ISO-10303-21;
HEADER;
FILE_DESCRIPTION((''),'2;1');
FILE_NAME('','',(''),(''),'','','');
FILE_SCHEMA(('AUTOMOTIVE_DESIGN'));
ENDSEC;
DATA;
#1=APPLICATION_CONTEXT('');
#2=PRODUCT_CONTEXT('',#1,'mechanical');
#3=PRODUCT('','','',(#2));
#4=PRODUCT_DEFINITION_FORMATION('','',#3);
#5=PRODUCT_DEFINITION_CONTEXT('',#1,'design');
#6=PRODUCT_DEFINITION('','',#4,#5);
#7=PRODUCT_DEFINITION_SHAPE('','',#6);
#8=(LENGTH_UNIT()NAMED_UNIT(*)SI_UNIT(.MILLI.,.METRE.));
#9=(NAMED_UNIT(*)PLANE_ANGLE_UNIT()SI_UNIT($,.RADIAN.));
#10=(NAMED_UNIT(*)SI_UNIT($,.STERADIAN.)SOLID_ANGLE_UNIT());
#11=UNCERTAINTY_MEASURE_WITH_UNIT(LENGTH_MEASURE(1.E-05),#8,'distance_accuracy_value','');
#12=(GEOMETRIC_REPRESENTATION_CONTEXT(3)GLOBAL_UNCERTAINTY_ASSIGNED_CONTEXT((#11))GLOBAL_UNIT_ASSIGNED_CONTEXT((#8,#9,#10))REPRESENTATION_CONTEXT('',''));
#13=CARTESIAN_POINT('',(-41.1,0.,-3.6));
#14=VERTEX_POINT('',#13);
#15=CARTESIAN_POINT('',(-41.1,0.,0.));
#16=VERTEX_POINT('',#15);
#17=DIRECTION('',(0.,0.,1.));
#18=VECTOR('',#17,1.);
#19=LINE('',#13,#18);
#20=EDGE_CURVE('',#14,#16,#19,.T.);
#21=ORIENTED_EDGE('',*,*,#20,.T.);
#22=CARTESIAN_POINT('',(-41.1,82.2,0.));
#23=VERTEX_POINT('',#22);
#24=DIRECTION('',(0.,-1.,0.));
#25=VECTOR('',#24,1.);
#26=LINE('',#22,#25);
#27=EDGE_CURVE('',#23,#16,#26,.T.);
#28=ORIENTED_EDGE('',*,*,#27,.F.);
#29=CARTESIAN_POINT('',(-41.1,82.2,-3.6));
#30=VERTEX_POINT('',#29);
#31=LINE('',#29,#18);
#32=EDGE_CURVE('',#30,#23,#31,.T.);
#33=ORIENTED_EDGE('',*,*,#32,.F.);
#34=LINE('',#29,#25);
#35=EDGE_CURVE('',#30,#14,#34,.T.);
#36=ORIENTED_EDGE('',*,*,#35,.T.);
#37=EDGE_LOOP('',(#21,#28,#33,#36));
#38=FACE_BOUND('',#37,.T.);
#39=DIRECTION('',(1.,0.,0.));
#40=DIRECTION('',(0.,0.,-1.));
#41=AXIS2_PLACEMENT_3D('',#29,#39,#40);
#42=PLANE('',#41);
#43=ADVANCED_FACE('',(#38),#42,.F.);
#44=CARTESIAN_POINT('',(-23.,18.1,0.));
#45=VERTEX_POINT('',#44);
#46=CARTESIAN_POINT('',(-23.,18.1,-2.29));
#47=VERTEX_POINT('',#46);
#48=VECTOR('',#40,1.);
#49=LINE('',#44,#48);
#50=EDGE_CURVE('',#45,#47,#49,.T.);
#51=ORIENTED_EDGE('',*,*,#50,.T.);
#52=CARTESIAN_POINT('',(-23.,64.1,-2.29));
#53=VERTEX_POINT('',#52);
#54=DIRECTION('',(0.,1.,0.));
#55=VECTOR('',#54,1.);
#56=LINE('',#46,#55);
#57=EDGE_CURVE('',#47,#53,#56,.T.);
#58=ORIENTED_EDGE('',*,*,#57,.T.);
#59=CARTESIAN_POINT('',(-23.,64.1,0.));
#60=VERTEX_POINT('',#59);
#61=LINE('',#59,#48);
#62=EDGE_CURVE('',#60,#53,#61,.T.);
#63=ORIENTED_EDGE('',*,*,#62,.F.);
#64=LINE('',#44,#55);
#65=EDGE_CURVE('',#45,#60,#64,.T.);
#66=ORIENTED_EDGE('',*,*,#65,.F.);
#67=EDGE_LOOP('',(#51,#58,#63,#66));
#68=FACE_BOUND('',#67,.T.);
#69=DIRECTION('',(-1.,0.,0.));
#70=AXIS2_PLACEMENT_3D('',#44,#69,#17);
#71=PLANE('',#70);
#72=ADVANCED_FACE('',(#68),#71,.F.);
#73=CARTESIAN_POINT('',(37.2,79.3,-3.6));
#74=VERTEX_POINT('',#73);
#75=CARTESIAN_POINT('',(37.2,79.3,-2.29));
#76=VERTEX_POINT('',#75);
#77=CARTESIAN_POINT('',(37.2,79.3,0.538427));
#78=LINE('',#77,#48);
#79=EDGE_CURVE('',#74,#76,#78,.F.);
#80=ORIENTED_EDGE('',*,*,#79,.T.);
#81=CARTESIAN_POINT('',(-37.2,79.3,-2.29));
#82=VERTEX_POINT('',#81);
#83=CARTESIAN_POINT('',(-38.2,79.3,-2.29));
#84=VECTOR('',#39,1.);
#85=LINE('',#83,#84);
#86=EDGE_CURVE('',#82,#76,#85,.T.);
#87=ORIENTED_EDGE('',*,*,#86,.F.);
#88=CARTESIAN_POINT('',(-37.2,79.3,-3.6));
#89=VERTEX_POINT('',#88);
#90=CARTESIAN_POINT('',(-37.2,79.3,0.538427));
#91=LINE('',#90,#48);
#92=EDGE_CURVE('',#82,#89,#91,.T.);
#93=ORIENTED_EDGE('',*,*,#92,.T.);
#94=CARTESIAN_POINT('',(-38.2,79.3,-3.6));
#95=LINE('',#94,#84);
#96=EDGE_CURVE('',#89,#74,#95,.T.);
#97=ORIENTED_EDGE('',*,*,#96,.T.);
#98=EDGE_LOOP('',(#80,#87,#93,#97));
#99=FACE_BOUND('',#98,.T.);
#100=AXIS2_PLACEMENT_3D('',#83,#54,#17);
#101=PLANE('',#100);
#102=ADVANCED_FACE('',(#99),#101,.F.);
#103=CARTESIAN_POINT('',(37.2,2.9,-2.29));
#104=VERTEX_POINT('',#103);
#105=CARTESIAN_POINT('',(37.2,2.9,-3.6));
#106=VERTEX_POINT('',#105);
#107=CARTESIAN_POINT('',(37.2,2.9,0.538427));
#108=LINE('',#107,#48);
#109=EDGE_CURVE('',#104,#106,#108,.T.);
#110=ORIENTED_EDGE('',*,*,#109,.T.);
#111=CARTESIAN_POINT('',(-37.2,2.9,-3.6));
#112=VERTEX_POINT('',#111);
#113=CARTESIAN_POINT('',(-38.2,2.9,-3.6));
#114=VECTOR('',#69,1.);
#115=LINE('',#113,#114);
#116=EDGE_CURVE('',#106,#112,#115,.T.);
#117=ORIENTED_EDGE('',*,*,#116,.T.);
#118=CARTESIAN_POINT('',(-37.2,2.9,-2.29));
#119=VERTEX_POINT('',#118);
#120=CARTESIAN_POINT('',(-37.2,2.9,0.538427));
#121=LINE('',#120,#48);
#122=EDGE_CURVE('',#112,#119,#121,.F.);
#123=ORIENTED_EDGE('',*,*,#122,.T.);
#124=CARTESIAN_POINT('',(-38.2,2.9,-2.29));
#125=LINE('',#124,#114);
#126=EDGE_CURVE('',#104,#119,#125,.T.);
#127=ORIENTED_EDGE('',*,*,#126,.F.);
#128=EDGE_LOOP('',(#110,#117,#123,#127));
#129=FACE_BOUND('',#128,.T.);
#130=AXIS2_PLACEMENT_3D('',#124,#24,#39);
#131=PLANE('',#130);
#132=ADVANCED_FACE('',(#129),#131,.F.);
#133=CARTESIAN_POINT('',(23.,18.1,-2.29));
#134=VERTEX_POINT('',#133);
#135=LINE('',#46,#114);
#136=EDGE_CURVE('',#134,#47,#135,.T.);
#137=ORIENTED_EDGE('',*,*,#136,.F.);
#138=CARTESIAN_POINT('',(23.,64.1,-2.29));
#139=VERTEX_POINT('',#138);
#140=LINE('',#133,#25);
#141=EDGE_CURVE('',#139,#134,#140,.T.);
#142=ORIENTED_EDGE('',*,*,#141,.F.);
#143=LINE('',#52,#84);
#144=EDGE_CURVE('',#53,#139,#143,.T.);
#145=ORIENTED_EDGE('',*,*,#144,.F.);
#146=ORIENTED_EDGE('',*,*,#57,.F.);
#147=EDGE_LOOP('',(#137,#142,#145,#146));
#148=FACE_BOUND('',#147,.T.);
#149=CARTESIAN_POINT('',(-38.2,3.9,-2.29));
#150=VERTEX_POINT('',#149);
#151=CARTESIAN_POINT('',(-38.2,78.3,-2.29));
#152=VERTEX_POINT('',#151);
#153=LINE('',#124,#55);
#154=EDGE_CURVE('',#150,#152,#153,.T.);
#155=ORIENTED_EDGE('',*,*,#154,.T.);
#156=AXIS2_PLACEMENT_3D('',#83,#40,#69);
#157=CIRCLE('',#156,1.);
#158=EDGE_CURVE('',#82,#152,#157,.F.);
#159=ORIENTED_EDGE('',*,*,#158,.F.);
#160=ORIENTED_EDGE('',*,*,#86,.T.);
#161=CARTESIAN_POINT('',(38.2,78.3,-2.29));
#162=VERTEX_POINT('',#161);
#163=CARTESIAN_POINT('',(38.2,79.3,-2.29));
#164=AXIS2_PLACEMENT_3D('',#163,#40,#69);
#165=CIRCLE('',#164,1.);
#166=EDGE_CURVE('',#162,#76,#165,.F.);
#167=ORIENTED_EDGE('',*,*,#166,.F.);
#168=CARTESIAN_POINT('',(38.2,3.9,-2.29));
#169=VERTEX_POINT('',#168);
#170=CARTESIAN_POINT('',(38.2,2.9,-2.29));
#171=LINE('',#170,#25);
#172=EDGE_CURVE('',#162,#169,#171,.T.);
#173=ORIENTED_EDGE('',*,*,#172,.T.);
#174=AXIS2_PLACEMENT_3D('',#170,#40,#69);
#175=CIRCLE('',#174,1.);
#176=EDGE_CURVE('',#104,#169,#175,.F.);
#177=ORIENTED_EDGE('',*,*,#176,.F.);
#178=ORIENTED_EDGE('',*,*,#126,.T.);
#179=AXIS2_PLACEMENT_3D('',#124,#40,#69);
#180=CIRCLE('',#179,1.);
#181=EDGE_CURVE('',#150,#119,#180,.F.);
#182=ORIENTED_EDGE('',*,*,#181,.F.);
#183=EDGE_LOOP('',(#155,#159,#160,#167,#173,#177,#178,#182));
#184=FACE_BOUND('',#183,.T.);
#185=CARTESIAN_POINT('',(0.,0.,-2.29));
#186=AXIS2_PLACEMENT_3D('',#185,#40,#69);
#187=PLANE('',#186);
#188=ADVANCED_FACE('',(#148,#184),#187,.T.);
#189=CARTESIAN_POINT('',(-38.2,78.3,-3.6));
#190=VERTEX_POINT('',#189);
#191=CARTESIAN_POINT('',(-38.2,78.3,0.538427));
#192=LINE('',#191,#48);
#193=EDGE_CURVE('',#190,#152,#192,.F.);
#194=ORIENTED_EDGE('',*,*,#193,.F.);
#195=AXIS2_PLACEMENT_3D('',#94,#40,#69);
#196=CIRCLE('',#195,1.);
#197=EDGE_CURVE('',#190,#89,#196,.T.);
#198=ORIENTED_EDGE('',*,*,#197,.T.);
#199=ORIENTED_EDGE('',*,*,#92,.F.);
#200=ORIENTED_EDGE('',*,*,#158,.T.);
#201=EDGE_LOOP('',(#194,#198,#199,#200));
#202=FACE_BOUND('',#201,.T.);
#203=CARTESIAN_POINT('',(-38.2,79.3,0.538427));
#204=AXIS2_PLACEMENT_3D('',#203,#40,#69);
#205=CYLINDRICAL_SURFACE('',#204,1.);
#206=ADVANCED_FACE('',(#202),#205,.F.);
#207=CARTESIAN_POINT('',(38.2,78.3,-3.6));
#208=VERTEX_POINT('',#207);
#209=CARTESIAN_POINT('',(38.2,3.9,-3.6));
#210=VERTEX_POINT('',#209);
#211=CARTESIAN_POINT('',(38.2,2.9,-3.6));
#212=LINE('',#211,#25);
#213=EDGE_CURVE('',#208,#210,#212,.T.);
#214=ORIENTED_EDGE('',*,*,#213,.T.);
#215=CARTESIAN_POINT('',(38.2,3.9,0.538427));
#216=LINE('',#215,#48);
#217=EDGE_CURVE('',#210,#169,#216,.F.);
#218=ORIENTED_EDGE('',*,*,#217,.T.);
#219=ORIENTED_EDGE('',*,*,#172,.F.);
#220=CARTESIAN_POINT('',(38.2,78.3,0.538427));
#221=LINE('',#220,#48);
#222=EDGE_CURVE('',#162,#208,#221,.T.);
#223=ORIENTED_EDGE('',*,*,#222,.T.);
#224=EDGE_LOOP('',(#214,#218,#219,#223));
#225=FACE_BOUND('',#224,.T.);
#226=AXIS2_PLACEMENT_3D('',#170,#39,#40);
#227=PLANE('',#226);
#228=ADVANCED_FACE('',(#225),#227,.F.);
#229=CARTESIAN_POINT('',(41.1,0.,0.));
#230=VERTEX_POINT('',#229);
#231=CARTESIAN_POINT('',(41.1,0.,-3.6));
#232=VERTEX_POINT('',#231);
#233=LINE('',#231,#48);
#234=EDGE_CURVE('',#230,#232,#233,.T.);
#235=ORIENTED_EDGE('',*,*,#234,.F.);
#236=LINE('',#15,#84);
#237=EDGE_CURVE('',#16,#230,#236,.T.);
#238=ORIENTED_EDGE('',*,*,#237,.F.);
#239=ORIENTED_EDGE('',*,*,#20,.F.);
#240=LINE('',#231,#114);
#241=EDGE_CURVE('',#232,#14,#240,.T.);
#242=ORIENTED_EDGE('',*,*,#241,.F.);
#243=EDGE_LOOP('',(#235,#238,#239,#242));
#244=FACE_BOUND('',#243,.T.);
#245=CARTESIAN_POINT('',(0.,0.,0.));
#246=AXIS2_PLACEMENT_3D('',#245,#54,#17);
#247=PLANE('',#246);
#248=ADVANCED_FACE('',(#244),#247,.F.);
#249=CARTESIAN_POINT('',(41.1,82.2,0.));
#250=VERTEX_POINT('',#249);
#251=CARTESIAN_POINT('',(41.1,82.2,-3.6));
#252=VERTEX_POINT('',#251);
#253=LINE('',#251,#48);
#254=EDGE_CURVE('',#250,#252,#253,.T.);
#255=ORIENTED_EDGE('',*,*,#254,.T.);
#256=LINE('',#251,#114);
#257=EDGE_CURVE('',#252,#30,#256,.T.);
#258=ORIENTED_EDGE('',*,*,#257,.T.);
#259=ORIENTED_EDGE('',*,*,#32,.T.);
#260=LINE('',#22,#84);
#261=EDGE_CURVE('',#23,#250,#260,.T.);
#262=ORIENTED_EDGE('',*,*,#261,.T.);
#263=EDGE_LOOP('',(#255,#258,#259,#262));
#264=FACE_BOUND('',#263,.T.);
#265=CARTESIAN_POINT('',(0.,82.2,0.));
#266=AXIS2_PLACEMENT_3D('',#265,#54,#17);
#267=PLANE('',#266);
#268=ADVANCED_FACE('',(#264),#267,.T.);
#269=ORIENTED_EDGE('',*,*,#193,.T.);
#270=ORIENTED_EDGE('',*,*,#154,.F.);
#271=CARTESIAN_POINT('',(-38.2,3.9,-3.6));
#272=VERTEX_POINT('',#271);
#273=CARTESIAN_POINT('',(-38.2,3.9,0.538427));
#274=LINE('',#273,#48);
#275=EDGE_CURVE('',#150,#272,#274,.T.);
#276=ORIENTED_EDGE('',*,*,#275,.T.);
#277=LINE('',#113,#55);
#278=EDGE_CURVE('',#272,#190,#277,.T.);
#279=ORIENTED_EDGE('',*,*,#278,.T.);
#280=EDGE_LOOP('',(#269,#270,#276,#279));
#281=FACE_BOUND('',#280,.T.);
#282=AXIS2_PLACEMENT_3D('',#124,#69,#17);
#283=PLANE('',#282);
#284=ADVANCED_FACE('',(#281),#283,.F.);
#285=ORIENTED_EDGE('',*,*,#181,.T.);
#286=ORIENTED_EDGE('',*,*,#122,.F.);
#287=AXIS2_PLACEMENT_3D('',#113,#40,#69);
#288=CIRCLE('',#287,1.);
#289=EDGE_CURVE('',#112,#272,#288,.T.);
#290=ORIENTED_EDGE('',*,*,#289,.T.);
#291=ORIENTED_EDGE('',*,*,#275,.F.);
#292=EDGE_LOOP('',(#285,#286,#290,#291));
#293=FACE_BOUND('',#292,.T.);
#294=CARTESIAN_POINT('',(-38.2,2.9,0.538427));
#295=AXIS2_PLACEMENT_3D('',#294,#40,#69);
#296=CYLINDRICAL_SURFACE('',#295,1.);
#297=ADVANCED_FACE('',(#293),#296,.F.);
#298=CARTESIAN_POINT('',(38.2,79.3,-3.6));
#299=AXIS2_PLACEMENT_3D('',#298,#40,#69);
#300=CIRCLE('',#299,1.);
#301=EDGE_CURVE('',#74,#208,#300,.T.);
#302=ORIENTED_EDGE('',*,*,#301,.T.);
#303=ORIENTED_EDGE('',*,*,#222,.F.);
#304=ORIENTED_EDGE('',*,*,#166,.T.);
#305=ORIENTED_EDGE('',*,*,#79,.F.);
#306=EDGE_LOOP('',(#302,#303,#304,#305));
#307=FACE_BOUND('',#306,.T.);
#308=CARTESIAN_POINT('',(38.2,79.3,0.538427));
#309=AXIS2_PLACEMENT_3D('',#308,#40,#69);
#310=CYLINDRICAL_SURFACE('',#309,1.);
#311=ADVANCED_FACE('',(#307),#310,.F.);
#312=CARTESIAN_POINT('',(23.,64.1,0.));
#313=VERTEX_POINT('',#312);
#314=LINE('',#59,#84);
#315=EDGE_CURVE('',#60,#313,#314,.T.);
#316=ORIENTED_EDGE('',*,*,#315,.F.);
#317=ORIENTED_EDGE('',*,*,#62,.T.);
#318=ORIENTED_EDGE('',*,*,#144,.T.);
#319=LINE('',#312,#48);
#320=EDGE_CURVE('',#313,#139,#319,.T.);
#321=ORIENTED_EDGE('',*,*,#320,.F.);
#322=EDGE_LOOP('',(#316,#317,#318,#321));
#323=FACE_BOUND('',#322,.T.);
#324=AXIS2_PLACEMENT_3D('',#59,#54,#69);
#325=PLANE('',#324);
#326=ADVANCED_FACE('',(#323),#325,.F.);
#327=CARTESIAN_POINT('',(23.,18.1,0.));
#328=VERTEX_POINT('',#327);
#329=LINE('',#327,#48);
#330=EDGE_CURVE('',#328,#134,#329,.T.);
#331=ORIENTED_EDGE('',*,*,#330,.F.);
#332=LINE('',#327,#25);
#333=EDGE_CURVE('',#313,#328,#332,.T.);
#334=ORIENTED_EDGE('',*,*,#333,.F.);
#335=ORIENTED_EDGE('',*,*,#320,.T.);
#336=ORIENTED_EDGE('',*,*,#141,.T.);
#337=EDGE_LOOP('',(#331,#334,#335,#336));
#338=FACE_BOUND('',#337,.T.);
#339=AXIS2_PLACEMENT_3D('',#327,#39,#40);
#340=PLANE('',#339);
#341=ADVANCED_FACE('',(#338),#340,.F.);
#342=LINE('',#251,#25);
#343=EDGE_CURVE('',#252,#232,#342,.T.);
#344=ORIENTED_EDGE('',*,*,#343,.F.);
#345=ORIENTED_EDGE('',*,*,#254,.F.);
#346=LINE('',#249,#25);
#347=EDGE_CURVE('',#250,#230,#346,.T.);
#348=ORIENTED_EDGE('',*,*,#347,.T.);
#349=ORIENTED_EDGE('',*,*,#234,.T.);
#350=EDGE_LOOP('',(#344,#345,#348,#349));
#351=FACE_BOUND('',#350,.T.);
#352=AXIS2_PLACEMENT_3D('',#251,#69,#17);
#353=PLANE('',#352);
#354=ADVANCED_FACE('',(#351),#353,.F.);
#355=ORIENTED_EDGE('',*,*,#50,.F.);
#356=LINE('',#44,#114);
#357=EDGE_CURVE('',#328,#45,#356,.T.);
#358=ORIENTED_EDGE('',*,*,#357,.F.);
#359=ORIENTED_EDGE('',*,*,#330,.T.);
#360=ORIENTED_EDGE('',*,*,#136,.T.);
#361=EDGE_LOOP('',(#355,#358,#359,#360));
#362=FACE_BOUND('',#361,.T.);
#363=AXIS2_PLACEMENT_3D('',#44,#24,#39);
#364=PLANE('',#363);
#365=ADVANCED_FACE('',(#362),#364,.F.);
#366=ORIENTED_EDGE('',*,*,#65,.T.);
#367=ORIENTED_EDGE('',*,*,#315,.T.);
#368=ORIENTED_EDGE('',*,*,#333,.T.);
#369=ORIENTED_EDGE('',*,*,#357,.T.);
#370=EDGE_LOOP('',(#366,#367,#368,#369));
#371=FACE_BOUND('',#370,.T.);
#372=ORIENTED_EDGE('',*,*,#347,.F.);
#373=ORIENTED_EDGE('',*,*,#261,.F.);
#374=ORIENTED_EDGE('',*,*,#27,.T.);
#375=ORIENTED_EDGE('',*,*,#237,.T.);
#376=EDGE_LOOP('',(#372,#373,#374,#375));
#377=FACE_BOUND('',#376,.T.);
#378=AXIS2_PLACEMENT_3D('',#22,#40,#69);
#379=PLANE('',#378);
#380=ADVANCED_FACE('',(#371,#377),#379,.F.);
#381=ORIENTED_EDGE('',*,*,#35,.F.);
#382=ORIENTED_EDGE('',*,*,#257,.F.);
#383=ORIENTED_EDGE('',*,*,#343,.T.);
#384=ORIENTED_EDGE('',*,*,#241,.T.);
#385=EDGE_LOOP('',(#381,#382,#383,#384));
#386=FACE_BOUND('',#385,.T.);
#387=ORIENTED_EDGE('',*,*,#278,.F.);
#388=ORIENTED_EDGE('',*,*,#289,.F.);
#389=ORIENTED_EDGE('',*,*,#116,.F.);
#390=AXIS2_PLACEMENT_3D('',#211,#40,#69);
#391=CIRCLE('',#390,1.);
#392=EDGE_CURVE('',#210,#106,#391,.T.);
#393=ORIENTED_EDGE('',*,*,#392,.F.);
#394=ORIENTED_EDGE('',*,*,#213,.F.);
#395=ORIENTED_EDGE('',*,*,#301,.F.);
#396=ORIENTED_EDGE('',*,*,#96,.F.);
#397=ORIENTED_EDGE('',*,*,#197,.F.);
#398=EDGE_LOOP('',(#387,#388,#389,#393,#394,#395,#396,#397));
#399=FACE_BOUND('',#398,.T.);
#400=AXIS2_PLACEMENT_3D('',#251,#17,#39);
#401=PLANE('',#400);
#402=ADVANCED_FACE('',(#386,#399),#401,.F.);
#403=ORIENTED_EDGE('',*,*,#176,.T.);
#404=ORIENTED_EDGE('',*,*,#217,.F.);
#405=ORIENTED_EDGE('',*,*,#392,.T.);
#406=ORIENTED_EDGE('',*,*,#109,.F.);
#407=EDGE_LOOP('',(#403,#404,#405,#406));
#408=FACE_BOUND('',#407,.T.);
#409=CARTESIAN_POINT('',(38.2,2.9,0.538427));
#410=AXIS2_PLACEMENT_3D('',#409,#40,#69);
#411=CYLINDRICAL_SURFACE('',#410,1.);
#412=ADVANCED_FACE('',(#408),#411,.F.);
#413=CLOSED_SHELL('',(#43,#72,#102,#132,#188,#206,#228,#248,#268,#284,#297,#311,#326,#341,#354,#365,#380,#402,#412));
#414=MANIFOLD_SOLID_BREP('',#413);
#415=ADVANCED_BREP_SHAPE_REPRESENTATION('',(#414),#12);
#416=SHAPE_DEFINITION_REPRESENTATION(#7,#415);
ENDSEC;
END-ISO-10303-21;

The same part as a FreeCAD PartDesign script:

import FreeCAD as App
import Part
import Sketcher
from FreeCAD import Vector

doc = App.newDocument("Part")
params = doc.addObject("Spreadsheet::Sheet", "Params")
for row, (alias, value) in enumerate([
    ("sketch1_width", "82.2 mm"),
    ("sketch1_height", "3.6 mm"),
    ("pad1_length", "82.2 mm"),
    ("sketch2_width", "76.4 mm"),
    ("pocket1_length", "1.31 mm"),
    ("sketch3_diameter", "2 mm"),
    ("pocket2_length", "1.31 mm"),
    ("sketch4_width", "46 mm"),
], start=1):
    params.set(f"A{row}", alias)
    params.set(f"B{row}", "=" + value)
    params.setAlias(f"B{row}", alias)

body = doc.addObject("PartDesign::Body", "Body")

# Sketch on XZ plane
sketch1 = body.newObject("Sketcher::SketchObject", "Sketch")
sketch1.AttachmentSupport = (doc.getObject("XZ_Plane"), [""])
sketch1.MapMode = "FlatFace"
sketch1.addGeometry([
    Part.LineSegment(Vector(-41.1, -3.6, 0), Vector(-41.1, 0, 0)),
    Part.LineSegment(Vector(-41.1, 0, 0), Vector(41.1, 0, 0)),
    Part.LineSegment(Vector(41.1, 0, 0), Vector(41.1, -3.6, 0)),
    Part.LineSegment(Vector(41.1, -3.6, 0), Vector(-41.1, -3.6, 0)),
], False)
sketch1.addConstraint([
    Sketcher.Constraint("Coincident", 0, 2, 1, 1),
    Sketcher.Constraint("Coincident", 1, 2, 2, 1),
    Sketcher.Constraint("Coincident", 2, 2, 3, 1),
    Sketcher.Constraint("Coincident", 3, 2, 0, 1),
    Sketcher.Constraint("Vertical", 0),
    Sketcher.Constraint("Horizontal", 1),
    Sketcher.Constraint("Vertical", 2),
    Sketcher.Constraint("Horizontal", 3),
    Sketcher.Constraint("Symmetric", 0, 2, 1, 2, -1, 1),
    Sketcher.Constraint("DistanceX", 1, 1, 1, 2, 82.2),
    Sketcher.Constraint("DistanceY", 0, 1, 0, 2, 3.6),
])
sketch1.setExpression("Constraints[9]", "Params.sketch1_width")
sketch1.setExpression("Constraints[10]", "Params.sketch1_height")
pad1 = body.newObject("PartDesign::Pad", "Pad")
pad1.Profile = sketch1
pad1.setExpression("Length", "Params.pad1_length")
pad1.Reversed = True

# Sketch on XY plane
sketch2 = body.newObject("Sketcher::SketchObject", "Sketch001")
sketch2.AttachmentSupport = (doc.getObject("XY_Plane"), [""])
sketch2.MapMode = "FlatFace"
sketch2.AttachmentOffset = App.Placement(Vector(0, 0, -3.6), App.Rotation())
sketch2.addGeometry([
    Part.LineSegment(Vector(38.2, 79.3, 0), Vector(38.2, 2.9, 0)),
    Part.LineSegment(Vector(38.2, 2.9, 0), Vector(-38.2, 2.9, 0)),
    Part.LineSegment(Vector(-38.2, 2.9, 0), Vector(-38.2, 79.3, 0)),
    Part.LineSegment(Vector(-38.2, 79.3, 0), Vector(38.2, 79.3, 0)),
], False)
sketch2.addConstraint([
    Sketcher.Constraint("Coincident", 0, 2, 1, 1),
    Sketcher.Constraint("Coincident", 1, 2, 2, 1),
    Sketcher.Constraint("Coincident", 2, 2, 3, 1),
    Sketcher.Constraint("Coincident", 3, 2, 0, 1),
    Sketcher.Constraint("Vertical", 0),
    Sketcher.Constraint("Horizontal", 1),
    Sketcher.Constraint("Vertical", 2),
    Sketcher.Constraint("Horizontal", 3),
    Sketcher.Constraint("Equal", 3, 0),
    Sketcher.Constraint("DistanceX", 1, 2, 1, 1, 76.4),
    Sketcher.Constraint("DistanceX", -1, 1, 0, 2, 38.2),
    Sketcher.Constraint("DistanceY", -1, 1, 0, 2, 2.9),
])
sketch2.setExpression("Constraints[9]", "Params.sketch2_width")
pocket1 = body.newObject("PartDesign::Pocket", "Pocket")
pocket1.Profile = sketch2
pocket1.setExpression("Length", "Params.pocket1_length")
pocket1.Reversed = True

# Sketch on XY plane
sketch3 = body.newObject("Sketcher::SketchObject", "Sketch002")
sketch3.AttachmentSupport = (doc.getObject("XY_Plane"), [""])
sketch3.MapMode = "FlatFace"
sketch3.AttachmentOffset = App.Placement(Vector(0, 0, -3.6), App.Rotation())
sketch3.addGeometry([
    Part.Circle(Vector(-38.2, 2.9, 0), Vector(0, 0, 1), 1),
    Part.Circle(Vector(-38.2, 79.3, 0), Vector(0, 0, 1), 1),
    Part.Circle(Vector(38.2, 2.9, 0), Vector(0, 0, 1), 1),
    Part.Circle(Vector(38.2, 79.3, 0), Vector(0, 0, 1), 1),
], False)
sketch3.addConstraint([
    Sketcher.Constraint("Equal", 0, 1),
    Sketcher.Constraint("Equal", 1, 2),
    Sketcher.Constraint("Equal", 2, 3),
    Sketcher.Constraint("Symmetric", 0, 3, 2, 3, -2),
    Sketcher.Constraint("Symmetric", 1, 3, 3, 3, -2),
    Sketcher.Constraint("Vertical", 0, 3, 1, 3),
    Sketcher.Constraint("Diameter", 0, 2.0),
    Sketcher.Constraint("DistanceX", 0, 3, -1, 1, 38.2),
    Sketcher.Constraint("DistanceY", -1, 1, 0, 3, 2.9),
    Sketcher.Constraint("DistanceY", -1, 1, 1, 3, 79.3),
])
sketch3.setExpression("Constraints[6]", "Params.sketch3_diameter")
pocket2 = body.newObject("PartDesign::Pocket", "Pocket001")
pocket2.Profile = sketch3
pocket2.setExpression("Length", "Params.pocket2_length")
pocket2.Reversed = True

# Sketch on XY plane
sketch4 = body.newObject("Sketcher::SketchObject", "Sketch003")
sketch4.AttachmentSupport = (doc.getObject("XY_Plane"), [""])
sketch4.MapMode = "FlatFace"
sketch4.AttachmentOffset = App.Placement(Vector(0, 0, -2.29), App.Rotation())
sketch4.addGeometry([
    Part.LineSegment(Vector(23, 64.1, 0), Vector(23, 18.1, 0)),
    Part.LineSegment(Vector(23, 18.1, 0), Vector(-23, 18.1, 0)),
    Part.LineSegment(Vector(-23, 18.1, 0), Vector(-23, 64.1, 0)),
    Part.LineSegment(Vector(-23, 64.1, 0), Vector(23, 64.1, 0)),
], False)
sketch4.addConstraint([
    Sketcher.Constraint("Coincident", 0, 2, 1, 1),
    Sketcher.Constraint("Coincident", 1, 2, 2, 1),
    Sketcher.Constraint("Coincident", 2, 2, 3, 1),
    Sketcher.Constraint("Coincident", 3, 2, 0, 1),
    Sketcher.Constraint("Vertical", 0),
    Sketcher.Constraint("Horizontal", 1),
    Sketcher.Constraint("Vertical", 2),
    Sketcher.Constraint("Horizontal", 3),
    Sketcher.Constraint("Equal", 3, 0),
    Sketcher.Constraint("DistanceX", 1, 2, 1, 1, 46.0),
    Sketcher.Constraint("DistanceX", -1, 1, 0, 2, 23.0),
    Sketcher.Constraint("DistanceY", -1, 1, 0, 2, 18.1),
])
sketch4.setExpression("Constraints[9]", "Params.sketch4_width")
pocket3 = body.newObject("PartDesign::Pocket", "Pocket002")
pocket3.Profile = sketch4
pocket3.Type = "ThroughAll"
pocket3.Reversed = True

doc.recompute()
